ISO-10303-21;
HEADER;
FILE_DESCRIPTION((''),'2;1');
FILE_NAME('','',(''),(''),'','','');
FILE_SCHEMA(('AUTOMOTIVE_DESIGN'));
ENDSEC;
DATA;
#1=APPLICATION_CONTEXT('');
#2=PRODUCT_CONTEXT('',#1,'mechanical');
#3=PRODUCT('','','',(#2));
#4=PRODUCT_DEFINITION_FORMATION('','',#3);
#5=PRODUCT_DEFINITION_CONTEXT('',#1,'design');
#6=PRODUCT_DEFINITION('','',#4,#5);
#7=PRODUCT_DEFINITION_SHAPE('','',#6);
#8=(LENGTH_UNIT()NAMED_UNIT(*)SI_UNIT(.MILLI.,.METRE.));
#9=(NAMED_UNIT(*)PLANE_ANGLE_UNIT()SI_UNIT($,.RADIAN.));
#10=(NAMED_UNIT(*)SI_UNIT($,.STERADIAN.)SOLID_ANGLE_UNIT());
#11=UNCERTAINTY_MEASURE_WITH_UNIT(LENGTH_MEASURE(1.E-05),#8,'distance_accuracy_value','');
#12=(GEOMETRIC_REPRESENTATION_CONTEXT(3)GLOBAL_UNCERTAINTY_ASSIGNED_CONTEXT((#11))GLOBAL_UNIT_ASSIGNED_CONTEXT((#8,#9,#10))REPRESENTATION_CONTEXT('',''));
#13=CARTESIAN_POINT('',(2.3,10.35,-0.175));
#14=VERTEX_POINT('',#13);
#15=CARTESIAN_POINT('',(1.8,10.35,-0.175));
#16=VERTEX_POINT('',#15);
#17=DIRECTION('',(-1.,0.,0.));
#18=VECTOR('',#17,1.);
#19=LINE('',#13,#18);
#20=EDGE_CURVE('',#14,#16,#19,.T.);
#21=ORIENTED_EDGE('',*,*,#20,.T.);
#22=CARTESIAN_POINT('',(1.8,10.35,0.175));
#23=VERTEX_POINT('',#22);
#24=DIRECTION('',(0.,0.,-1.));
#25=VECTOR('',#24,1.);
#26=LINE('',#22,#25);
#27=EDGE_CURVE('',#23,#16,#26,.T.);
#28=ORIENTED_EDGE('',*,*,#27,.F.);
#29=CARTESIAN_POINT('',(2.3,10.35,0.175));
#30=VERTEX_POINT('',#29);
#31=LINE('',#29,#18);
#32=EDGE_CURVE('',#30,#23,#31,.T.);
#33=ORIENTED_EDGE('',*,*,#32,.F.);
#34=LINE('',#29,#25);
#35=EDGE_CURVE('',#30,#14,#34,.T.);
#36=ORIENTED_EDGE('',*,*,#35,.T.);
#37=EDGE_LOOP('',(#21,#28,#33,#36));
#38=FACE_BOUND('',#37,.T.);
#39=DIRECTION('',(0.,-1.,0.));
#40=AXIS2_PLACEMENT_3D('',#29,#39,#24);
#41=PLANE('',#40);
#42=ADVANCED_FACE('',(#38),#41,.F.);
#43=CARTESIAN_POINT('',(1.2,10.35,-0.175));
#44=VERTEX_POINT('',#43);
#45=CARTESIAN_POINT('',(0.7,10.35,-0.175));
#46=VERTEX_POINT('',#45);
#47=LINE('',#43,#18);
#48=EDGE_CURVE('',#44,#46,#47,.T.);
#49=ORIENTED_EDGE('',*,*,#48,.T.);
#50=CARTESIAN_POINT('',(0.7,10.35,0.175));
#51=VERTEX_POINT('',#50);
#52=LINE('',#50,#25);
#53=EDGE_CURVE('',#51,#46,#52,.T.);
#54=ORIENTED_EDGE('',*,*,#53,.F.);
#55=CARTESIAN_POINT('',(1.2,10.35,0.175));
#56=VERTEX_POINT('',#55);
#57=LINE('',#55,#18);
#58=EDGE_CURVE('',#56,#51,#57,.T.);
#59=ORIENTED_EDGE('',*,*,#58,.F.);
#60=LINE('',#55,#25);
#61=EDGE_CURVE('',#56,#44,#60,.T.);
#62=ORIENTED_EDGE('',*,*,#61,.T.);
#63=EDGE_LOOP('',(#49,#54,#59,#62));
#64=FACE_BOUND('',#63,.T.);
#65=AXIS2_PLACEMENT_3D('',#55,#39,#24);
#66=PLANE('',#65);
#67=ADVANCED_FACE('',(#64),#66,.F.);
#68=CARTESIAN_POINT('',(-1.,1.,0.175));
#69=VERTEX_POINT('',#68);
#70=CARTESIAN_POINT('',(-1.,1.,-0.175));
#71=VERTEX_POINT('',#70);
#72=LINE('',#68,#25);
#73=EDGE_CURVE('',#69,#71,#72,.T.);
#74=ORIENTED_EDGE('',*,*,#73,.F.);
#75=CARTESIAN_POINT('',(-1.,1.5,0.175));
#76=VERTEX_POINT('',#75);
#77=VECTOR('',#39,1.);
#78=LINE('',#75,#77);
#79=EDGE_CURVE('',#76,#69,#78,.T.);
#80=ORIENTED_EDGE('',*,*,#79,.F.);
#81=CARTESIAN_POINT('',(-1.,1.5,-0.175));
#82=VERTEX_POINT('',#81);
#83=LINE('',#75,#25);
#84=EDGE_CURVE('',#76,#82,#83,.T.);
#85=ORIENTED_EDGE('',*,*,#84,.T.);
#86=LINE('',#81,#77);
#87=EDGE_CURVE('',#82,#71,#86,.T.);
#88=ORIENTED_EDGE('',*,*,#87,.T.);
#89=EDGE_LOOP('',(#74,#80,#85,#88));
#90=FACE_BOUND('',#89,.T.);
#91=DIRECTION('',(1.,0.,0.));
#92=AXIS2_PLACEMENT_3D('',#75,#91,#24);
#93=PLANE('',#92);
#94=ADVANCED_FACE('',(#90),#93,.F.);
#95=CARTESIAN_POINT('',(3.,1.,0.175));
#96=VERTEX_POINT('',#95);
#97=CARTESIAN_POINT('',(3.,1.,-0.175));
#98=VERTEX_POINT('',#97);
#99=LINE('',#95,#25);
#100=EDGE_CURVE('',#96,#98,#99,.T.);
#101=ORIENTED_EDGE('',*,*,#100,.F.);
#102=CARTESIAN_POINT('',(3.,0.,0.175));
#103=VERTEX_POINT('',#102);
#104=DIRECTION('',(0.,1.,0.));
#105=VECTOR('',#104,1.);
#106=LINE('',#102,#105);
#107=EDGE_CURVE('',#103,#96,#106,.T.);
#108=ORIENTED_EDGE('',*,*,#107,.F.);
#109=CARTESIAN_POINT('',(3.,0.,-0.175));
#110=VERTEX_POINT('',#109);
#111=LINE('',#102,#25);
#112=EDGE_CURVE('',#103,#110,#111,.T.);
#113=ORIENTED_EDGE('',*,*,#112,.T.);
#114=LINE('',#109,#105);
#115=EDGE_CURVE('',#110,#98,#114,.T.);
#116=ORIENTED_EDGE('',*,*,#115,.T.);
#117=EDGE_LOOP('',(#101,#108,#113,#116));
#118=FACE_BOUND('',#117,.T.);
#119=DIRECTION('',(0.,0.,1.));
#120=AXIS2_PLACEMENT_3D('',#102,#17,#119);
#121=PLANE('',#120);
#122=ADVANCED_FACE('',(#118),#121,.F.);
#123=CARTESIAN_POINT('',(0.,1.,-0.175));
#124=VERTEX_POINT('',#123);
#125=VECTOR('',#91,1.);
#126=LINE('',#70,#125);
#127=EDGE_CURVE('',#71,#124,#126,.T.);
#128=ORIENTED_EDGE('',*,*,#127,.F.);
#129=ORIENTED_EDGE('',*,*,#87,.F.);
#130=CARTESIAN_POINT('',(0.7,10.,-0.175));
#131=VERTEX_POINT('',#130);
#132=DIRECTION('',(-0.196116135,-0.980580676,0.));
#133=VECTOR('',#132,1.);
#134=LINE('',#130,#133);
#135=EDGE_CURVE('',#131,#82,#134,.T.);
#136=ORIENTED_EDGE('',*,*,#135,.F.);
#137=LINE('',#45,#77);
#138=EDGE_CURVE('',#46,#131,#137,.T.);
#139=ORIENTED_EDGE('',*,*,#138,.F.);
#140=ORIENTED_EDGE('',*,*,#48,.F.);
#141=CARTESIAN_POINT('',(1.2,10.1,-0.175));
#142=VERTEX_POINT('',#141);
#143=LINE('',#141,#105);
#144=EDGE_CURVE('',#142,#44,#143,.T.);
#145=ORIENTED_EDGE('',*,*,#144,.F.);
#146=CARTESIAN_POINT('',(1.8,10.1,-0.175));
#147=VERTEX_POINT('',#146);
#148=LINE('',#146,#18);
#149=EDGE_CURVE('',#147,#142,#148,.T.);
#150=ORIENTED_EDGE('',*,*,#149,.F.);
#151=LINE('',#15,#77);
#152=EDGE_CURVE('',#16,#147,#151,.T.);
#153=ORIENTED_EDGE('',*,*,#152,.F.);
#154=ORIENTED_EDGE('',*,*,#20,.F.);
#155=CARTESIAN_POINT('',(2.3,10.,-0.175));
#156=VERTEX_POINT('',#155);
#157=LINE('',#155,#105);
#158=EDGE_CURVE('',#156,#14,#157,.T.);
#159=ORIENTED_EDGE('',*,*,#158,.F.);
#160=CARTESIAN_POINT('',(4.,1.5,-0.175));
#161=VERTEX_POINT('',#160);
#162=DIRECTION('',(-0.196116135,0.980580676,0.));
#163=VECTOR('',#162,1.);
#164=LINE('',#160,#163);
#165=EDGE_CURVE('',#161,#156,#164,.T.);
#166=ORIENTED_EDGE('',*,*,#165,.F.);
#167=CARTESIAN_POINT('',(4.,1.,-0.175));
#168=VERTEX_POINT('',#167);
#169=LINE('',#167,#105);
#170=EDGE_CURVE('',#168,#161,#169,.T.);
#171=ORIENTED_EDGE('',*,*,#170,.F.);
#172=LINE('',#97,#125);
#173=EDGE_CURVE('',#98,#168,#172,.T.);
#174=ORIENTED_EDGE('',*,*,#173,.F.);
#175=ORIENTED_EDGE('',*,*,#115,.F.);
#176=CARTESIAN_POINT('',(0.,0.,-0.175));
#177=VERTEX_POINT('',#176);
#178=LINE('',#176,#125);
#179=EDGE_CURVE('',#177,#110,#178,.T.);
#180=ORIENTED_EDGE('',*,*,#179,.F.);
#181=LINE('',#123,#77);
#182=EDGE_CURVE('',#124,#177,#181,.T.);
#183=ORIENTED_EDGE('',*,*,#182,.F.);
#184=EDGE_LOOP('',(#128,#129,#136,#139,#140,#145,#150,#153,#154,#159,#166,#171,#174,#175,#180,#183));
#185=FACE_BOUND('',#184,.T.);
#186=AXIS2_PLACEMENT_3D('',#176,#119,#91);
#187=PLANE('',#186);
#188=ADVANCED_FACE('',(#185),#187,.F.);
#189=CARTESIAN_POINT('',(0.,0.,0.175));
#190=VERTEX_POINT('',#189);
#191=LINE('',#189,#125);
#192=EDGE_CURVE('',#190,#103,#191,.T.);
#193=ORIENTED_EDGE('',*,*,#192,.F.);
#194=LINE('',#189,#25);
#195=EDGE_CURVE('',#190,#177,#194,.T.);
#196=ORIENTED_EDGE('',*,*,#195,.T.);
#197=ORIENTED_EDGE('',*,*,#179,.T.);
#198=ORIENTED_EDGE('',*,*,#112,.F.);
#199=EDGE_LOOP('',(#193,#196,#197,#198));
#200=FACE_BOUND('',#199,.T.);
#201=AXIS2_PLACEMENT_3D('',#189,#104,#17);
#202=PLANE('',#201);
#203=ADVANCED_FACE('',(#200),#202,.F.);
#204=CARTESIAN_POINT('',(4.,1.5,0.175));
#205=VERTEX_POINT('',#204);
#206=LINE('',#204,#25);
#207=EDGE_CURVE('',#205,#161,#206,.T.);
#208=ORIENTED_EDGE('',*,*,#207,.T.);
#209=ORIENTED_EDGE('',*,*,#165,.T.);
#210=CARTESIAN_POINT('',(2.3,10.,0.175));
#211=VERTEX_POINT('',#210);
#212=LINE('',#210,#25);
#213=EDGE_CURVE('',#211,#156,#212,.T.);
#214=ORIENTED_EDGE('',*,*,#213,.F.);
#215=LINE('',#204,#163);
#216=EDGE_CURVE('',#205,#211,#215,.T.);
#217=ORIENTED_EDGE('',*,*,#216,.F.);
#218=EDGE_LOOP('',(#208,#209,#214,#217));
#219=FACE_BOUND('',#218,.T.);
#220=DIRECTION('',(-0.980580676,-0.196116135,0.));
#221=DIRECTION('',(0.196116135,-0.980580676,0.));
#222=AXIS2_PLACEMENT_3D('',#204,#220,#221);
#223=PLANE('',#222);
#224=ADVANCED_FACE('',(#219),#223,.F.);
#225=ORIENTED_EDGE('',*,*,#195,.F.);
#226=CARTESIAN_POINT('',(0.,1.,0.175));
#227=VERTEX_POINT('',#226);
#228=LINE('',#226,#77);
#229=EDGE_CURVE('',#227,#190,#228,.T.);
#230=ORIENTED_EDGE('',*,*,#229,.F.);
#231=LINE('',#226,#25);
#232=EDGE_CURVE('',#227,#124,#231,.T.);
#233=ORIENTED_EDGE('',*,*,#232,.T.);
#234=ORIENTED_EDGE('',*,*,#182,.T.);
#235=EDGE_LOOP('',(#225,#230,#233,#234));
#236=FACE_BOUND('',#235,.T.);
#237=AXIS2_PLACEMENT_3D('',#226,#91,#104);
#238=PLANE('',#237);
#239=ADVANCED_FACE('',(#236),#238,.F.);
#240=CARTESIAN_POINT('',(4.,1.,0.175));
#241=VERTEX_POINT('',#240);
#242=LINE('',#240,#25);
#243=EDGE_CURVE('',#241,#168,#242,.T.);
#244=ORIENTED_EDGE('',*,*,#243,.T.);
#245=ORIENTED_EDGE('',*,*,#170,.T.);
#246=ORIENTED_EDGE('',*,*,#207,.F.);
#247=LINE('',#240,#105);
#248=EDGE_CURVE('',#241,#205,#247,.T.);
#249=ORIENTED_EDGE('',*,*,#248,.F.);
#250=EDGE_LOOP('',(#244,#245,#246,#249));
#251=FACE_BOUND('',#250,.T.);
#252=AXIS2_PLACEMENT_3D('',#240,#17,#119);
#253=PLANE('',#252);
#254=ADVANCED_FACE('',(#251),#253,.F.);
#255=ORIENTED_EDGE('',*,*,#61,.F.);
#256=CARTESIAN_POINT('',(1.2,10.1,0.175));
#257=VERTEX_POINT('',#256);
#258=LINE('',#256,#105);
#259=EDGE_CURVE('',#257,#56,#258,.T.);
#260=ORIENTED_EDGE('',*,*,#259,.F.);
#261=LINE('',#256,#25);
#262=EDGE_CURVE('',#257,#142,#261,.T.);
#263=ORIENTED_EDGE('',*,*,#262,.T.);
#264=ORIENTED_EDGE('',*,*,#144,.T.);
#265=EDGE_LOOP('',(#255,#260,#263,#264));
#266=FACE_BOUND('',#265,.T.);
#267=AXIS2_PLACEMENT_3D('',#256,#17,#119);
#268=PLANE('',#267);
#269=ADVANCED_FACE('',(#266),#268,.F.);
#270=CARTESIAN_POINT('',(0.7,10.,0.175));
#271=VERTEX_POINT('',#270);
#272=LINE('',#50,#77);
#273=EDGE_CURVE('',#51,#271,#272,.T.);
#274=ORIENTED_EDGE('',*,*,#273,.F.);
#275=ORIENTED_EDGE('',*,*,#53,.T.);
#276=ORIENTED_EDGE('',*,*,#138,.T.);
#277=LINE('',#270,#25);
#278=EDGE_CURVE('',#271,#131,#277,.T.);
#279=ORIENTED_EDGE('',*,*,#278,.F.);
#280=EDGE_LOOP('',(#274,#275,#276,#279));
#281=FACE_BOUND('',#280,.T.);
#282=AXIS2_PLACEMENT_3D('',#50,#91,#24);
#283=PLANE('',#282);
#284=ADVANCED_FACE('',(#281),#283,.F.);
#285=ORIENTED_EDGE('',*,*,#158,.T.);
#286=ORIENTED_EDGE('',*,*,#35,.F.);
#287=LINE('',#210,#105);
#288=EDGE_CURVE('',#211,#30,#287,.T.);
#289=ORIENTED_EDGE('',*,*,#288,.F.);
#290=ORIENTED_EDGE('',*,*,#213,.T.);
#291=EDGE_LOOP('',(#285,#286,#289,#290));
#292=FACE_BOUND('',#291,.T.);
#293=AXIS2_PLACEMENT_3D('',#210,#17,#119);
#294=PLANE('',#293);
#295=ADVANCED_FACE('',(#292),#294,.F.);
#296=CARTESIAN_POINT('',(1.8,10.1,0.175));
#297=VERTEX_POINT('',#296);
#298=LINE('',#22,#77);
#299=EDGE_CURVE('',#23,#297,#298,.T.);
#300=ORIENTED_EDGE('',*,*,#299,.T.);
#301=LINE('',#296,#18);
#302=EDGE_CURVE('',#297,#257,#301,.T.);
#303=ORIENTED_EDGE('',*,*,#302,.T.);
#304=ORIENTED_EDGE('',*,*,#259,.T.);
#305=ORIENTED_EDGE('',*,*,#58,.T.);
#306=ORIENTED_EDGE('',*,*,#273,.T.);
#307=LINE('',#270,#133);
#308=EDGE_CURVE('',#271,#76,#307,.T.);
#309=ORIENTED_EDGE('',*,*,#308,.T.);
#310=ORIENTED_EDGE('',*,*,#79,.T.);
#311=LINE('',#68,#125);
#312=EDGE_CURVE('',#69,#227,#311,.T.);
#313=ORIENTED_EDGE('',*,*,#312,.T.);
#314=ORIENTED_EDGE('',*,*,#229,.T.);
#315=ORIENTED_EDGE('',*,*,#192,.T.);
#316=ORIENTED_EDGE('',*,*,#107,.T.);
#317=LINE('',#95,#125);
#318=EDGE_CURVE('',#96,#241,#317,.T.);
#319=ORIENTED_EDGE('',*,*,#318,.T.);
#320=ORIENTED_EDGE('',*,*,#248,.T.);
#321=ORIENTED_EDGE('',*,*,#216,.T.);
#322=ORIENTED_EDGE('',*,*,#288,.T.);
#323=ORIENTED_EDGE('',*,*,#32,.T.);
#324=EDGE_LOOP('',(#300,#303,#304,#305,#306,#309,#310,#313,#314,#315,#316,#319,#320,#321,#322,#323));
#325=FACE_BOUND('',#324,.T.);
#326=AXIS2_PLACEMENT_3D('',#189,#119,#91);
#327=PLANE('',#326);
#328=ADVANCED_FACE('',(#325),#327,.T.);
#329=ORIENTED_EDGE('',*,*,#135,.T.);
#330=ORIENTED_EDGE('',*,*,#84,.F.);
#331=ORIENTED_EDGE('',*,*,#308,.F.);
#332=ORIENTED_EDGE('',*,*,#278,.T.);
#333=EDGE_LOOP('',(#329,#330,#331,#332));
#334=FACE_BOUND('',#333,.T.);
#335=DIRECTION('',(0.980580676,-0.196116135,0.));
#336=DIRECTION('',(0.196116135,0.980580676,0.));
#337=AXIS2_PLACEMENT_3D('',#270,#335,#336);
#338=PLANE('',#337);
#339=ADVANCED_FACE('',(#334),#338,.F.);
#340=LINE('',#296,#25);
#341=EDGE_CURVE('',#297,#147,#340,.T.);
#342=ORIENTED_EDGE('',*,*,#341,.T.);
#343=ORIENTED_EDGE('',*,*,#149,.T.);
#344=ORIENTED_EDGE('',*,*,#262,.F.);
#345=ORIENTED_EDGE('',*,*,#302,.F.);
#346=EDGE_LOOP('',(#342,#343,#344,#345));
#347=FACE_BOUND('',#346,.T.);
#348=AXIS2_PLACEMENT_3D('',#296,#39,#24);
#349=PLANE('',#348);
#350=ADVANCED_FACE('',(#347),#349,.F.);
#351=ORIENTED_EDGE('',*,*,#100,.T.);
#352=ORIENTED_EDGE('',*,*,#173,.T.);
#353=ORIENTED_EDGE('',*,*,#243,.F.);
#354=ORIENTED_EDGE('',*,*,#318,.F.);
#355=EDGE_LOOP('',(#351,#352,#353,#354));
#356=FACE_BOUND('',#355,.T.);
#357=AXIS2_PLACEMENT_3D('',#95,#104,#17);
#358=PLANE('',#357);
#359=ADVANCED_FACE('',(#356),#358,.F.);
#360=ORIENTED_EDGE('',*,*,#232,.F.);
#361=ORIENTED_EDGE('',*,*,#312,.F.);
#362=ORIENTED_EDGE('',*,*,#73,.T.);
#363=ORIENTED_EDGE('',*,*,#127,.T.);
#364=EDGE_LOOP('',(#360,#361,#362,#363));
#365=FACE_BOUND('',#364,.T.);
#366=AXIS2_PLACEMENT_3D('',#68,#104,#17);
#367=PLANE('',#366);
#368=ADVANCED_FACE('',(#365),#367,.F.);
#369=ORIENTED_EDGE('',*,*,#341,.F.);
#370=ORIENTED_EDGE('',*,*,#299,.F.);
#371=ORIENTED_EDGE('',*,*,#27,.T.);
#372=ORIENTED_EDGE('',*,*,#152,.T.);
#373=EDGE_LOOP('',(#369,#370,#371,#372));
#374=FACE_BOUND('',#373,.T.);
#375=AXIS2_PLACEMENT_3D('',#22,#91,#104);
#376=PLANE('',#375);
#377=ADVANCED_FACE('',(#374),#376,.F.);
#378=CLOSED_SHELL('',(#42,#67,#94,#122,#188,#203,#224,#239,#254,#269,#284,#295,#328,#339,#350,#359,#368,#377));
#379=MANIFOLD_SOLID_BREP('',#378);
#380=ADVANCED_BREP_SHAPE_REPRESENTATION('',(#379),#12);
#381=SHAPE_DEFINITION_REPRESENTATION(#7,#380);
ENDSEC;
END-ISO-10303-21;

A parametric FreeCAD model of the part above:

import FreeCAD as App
import Part
import Sketcher
from FreeCAD import Vector
Q = App.Units.Quantity

doc = App.newDocument("Part")
params = doc.addObject("Spreadsheet::Sheet", "Params")
for row, (alias, value) in enumerate([
    ("sketch1_width", "3 mm"),
    ("sketch1_width2", "1 mm"),
    ("sketch1_width3", "0.5 mm"),
    ("sketch1_width4", "0.6 mm"),
    ("sketch1_height", "0.35 mm"),
    ("pad1_length", "0.35 mm"),
], start=1):
    params.set(f"A{row}", alias)
    params.set(f"B{row}", "=" + value)
    params.setAlias(f"B{row}", alias)

body = doc.addObject("PartDesign::Body", "Body")

# Sketch on XY plane
sketch1 = body.newObject("Sketcher::SketchObject", "Sketch")
sketch1.AttachmentSupport = (doc.getObject("XY_Plane"), [""])
sketch1.MapMode = "FlatFace"
sketch1.addGeometry([
    Part.LineSegment(Vector(0, 0, 0), Vector(3, 0, 0)),  # 0
    Part.LineSegment(Vector(3, 0, 0), Vector(3, 1, 0)),  # 1
    Part.LineSegment(Vector(3, 1, 0), Vector(4, 1, 0)),  # 2
    Part.LineSegment(Vector(4, 1, 0), Vector(4, 1.5, 0)),  # 3
    Part.LineSegment(Vector(4, 1.5, 0), Vector(2.3, 10, 0)),  # 4
    Part.LineSegment(Vector(2.3, 10, 0), Vector(2.3, 10.35, 0)),  # 5
    Part.LineSegment(Vector(2.3, 10.35, 0), Vector(1.8, 10.35, 0)),  # 6
    Part.LineSegment(Vector(1.8, 10.35, 0), Vector(1.8, 10.1, 0)),  # 7
    Part.LineSegment(Vector(1.8, 10.1, 0), Vector(1.2, 10.1, 0)),  # 8
    Part.LineSegment(Vector(1.2, 10.1, 0), Vector(1.2, 10.35, 0)),  # 9
    Part.LineSegment(Vector(1.2, 10.35, 0), Vector(0.7, 10.35, 0)),  # 10
    Part.LineSegment(Vector(0.7, 10.35, 0), Vector(0.7, 10, 0)),  # 11
    Part.LineSegment(Vector(0.7, 10, 0), Vector(-1, 1.5, 0)),  # 12
    Part.LineSegment(Vector(-1, 1.5, 0), Vector(-1, 1, 0)),  # 13
    Part.LineSegment(Vector(-1, 1, 0), Vector(0, 1, 0)),  # 14
    Part.LineSegment(Vector(0, 1, 0), Vector(0, 0, 0)),  # 15
], False)
sketch1.addConstraint([
    Sketcher.Constraint("Coincident", 0, 2, 1, 1),
    Sketcher.Constraint("Coincident", 1, 2, 2, 1),
    Sketcher.Constraint("Coincident", 2, 2, 3, 1),
    Sketcher.Constraint("Coincident", 3, 2, 4, 1),
    Sketcher.Constraint("Coincident", 4, 2, 5, 1),
    Sketcher.Constraint("Coincident", 5, 2, 6, 1),
    Sketcher.Constraint("Coincident", 6, 2, 7, 1),
    Sketcher.Constraint("Coincident", 7, 2, 8, 1),
    Sketcher.Constraint("Coincident", 8, 2, 9, 1),
    Sketcher.Constraint("Coincident", 9, 2, 10, 1),
    Sketcher.Constraint("Coincident", 10, 2, 11, 1),
    Sketcher.Constraint("Coincident", 11, 2, 12, 1),
    Sketcher.Constraint("Coincident", 12, 2, 13, 1),
    Sketcher.Constraint("Coincident", 13, 2, 14, 1),
    Sketcher.Constraint("Coincident", 14, 2, 15, 1),
    Sketcher.Constraint("Coincident", 15, 2, 0, 1),
    Sketcher.Constraint("Horizontal", 0),
    Sketcher.Constraint("Vertical", 1),
    Sketcher.Constraint("Horizontal", 2),
    Sketcher.Constraint("Vertical", 3),
    Sketcher.Constraint("Vertical", 5),
    Sketcher.Constraint("Horizontal", 6),
    Sketcher.Constraint("Vertical", 7),
    Sketcher.Constraint("Horizontal", 8),
    Sketcher.Constraint("Vertical", 9),
    Sketcher.Constraint("Horizontal", 10),
    Sketcher.Constraint("Vertical", 11),
    Sketcher.Constraint("Vertical", 13),
    Sketcher.Constraint("Horizontal", 14),
    Sketcher.Constraint("Vertical", 15),
    Sketcher.Constraint("Coincident", 15, 2, -1, 1),
    Sketcher.Constraint("Horizontal", 6, 2, 9, 2),
    Sketcher.Constraint("Horizontal", 4, 2, 11, 2),
    Sketcher.Constraint("Horizontal", 3, 2, 12, 2),
    Sketcher.Constraint("Horizontal", 2, 2, 13, 2),
    Sketcher.Constraint("Equal", 6, 10),
    Sketcher.Constraint("Equal", 2, 14),
    Sketcher.Constraint("Equal", 14, 1),
    Sketcher.Constraint("Equal", 10, 3),
    Sketcher.Constraint("Equal", 4, 12),
    Sketcher.Constraint("DistanceX", 0, 1, 0, 2, Q("3 mm")),
    Sketcher.Constraint("DistanceX", 2, 1, 2, 2, Q("1 mm")),
    Sketcher.Constraint("DistanceX", 6, 2, 6, 1, Q("0.5 mm")),
    Sketcher.Constraint("DistanceX", 8, 2, 8, 1, Q("0.6 mm")),
    Sketcher.Constraint("DistanceY", -1, 1, 4, 2, Q("10 mm")),
    Sketcher.Constraint("DistanceY", 5, 1, 5, 2, Q("0.35 mm")),
    Sketcher.Constraint("DistanceY", 7, 2, 7, 1, Q("0.25 mm")),
])
sketch1.setExpression("Constraints[40]", "Params.sketch1_width")
sketch1.setExpression("Constraints[41]", "Params.sketch1_width2")
sketch1.setExpression("Constraints[42]", "Params.sketch1_width3")
sketch1.setExpression("Constraints[43]", "Params.sketch1_width4")
sketch1.setExpression("Constraints[45]", "Params.sketch1_height")
pad1 = body.newObject("PartDesign::Pad", "Pad")
pad1.Profile = sketch1
pad1.setExpression("Length", "Params.pad1_length")
pad1.Midplane = True

doc.recompute()
